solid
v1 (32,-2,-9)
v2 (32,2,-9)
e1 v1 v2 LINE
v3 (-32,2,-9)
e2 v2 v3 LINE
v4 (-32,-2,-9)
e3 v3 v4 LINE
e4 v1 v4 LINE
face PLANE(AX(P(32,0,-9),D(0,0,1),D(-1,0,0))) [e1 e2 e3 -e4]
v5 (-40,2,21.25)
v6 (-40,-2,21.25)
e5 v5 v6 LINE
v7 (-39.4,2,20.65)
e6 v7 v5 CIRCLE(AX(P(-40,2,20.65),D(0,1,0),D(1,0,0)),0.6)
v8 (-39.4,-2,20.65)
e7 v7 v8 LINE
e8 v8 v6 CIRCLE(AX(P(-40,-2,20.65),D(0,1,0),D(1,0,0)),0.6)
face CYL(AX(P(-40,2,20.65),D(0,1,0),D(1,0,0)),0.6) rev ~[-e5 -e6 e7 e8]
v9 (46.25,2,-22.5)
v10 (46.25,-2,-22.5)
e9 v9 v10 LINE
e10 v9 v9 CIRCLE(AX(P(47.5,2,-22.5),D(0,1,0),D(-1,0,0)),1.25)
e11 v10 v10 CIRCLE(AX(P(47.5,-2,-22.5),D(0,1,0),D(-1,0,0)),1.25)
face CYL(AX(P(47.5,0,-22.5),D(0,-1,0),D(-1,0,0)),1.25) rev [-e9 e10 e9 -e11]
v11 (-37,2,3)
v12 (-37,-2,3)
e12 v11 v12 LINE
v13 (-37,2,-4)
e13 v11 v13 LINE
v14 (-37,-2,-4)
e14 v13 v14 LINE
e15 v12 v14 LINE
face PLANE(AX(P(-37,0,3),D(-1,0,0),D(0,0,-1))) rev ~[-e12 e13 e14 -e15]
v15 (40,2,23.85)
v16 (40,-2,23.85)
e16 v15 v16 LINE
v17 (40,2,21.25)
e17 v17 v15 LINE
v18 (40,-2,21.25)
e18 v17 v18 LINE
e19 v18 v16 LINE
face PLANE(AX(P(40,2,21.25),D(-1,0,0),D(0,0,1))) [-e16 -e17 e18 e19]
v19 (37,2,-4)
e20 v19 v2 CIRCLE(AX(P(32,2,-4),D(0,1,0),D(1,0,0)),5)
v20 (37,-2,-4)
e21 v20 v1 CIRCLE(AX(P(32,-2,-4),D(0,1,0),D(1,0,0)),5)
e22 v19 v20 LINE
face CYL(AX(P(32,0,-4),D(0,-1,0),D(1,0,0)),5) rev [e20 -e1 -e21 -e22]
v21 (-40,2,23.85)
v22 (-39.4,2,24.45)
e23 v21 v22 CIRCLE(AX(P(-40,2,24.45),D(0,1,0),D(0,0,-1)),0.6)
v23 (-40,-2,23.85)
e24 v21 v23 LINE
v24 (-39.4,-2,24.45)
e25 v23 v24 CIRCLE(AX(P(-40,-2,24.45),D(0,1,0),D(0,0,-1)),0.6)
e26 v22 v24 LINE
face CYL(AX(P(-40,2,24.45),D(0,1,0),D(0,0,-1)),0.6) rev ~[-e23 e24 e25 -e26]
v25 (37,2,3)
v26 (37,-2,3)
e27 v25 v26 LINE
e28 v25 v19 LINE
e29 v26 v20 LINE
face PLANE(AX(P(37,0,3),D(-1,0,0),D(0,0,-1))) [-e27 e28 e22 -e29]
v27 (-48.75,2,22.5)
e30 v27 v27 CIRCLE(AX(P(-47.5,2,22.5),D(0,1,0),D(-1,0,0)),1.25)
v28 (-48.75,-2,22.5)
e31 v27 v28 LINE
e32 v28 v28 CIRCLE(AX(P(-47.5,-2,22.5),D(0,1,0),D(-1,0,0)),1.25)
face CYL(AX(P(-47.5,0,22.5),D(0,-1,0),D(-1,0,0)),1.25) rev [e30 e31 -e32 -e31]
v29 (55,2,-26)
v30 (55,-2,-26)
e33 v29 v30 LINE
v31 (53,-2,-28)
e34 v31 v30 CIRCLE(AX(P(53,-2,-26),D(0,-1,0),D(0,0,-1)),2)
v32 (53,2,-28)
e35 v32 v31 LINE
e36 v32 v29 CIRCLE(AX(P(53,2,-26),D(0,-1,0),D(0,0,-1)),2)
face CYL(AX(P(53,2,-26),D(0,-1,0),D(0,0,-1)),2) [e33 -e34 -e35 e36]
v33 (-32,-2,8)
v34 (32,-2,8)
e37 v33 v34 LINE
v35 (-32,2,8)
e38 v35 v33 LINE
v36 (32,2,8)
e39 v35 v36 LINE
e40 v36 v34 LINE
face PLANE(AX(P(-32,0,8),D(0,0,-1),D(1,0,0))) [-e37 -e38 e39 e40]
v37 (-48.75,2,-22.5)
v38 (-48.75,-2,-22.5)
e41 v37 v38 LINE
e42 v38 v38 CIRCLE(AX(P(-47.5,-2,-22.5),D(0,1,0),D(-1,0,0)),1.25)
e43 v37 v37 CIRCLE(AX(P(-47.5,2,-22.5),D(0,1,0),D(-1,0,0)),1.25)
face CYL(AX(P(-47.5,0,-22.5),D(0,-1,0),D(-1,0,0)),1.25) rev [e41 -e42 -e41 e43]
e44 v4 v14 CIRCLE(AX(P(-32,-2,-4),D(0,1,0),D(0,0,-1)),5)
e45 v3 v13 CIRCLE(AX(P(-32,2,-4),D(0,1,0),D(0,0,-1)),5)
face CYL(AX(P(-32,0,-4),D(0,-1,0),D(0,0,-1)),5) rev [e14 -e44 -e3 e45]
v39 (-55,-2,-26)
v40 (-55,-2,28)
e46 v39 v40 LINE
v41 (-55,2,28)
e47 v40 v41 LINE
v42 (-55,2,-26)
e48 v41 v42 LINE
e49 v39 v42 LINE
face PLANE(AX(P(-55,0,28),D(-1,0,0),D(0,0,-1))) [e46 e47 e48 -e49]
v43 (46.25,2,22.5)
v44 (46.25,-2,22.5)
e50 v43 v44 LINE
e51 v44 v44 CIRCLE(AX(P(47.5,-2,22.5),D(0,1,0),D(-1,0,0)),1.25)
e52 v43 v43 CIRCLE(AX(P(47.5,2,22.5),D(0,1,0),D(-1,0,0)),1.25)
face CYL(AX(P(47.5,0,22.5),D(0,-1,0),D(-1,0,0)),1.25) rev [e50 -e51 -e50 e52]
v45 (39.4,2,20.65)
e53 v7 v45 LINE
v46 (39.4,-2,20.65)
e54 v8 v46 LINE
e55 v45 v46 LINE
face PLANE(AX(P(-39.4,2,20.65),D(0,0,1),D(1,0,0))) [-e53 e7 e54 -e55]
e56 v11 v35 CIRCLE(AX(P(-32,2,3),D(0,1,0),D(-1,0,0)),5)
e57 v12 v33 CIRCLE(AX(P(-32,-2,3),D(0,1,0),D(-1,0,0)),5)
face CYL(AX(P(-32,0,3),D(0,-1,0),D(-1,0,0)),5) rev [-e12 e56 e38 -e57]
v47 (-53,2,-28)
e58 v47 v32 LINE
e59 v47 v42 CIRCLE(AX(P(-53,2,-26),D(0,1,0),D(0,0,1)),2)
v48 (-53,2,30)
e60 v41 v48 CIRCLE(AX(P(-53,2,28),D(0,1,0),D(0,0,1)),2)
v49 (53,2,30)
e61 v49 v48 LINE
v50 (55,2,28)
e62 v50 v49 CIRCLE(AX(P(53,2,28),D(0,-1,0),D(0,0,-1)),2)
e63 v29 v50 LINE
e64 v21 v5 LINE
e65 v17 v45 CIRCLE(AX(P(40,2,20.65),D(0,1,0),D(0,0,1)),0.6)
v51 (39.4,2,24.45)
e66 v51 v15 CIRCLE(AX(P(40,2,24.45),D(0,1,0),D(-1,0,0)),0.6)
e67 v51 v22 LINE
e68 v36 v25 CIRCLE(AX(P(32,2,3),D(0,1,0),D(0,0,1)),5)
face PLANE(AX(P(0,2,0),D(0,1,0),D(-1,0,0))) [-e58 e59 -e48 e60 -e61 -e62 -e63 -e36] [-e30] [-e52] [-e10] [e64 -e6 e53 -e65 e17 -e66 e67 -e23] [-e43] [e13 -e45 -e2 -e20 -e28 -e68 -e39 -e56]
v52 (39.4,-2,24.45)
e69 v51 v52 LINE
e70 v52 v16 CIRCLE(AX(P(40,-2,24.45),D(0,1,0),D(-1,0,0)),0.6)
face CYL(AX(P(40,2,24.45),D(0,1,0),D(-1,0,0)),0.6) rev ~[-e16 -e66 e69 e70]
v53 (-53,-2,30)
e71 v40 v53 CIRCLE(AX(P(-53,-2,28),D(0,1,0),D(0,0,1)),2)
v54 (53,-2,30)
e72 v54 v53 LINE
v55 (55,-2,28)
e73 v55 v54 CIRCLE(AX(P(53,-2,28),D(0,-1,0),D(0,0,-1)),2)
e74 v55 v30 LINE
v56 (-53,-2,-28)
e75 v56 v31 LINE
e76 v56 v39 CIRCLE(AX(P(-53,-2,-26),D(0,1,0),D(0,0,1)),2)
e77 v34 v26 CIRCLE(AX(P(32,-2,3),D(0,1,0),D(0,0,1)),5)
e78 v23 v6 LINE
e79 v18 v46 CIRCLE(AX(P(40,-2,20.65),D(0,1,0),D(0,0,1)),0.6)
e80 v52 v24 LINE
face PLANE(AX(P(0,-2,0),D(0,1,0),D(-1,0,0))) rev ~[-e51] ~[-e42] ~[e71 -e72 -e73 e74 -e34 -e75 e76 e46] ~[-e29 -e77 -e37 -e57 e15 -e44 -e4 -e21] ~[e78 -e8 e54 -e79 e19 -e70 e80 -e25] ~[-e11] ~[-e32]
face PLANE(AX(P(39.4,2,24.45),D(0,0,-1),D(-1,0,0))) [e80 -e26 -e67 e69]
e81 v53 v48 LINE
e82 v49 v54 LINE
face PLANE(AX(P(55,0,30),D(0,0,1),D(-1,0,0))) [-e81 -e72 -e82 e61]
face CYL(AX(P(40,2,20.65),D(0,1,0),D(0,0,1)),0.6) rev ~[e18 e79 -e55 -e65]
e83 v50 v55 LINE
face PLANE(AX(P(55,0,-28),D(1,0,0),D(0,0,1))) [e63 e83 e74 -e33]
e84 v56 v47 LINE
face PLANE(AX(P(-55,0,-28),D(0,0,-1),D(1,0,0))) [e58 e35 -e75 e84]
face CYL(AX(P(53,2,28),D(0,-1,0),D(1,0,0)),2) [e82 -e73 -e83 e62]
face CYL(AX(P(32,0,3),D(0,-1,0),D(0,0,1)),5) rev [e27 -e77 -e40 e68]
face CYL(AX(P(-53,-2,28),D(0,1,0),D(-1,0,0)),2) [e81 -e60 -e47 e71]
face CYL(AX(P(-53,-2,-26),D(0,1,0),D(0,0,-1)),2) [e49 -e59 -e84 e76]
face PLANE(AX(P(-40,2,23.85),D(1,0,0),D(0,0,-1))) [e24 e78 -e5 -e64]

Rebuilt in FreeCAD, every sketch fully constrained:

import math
import FreeCAD as App
import Part
import Sketcher


def edges_at(feature, points):
    """Names of the edges that pass closest to the given points."""
    edges = feature.Shape.Edges
    near = lambda p: min(range(len(edges)), key=lambda i: edges[i].distToShape(Part.Vertex(*p))[0])
    return sorted({f"Edge{near(p) + 1}" for p in points})


def add_polygon(sketch, points):
    """Adds a closed chain of lines whose ends are joined by coincident constraints."""
    first, n = sketch.GeometryCount, len(points)
    for a, b in zip(points, points[1:] + points[:1]):
        sketch.addGeometry(Part.LineSegment(App.Vector(*a, 0), App.Vector(*b, 0)), False)
    for i in range(n):
        sketch.addConstraint(Sketcher.Constraint("Coincident", first + i, 2, first + (i + 1) % n, 1))

doc = App.newDocument("Part")
params = doc.addObject("Spreadsheet::Sheet", "Params")
for row, (alias, value) in enumerate([
    ("sketch1_radius", "5 mm"),
    ("sketch1_diameter", "2.5 mm"),
    ("sketch1_width", "110 mm"),
    ("sketch1_width2", "64 mm"),
    ("sketch1_height", "58 mm"),
    ("pad1_length", "4 mm"),
    ("fillet_radius", "2 mm"),
    ("sketch2_radius", "0.6 mm"),
], start=1):
    params.set(f"A{row}", alias)
    params.set(f"B{row}", "=" + value)
    params.setAlias(f"B{row}", alias)

body = doc.addObject("PartDesign::Body", "Body")

sketch1 = body.newObject("Sketcher::SketchObject", "Sketch")
sketch1.AttachmentSupport = (doc.getObject("XZ_Plane"), [""])
sketch1.MapMode = "FlatFace"
add_polygon(sketch1, [(55, -28), (-55, -28), (-55, 30), (55, 30)])
sketch1.addGeometry(Part.Circle(App.Vector(47.5, -22.5, 0), App.Vector(0, 0, 1), 1.2), False)
sketch1.addGeometry(Part.Circle(App.Vector(-47.5, -22.5, 0), App.Vector(0, 0, 1), 1.2), False)
sketch1.addGeometry(Part.LineSegment(App.Vector(-32, -9, 0), App.Vector(32, -9, 0)), False)
sketch1.addGeometry(Part.ArcOfCircle(Part.Circle(App.Vector(32, -4, 0), App.Vector(0, 0, 1), 5), math.radians(-90), math.radians(0)), False)
sketch1.addGeometry(Part.LineSegment(App.Vector(37, -4, 0), App.Vector(37, 3, 0)), False)
sketch1.addGeometry(Part.ArcOfCircle(Part.Circle(App.Vector(32, 3, 0), App.Vector(0, 0, 1), 5), math.radians(0), math.radians(90)), False)
sketch1.addGeometry(Part.LineSegment(App.Vector(32, 8, 0), App.Vector(-32, 8, 0)), False)
sketch1.addGeometry(Part.ArcOfCircle(Part.Circle(App.Vector(-32, 3, 0), App.Vector(0, 0, 1), 5), math.radians(90), math.radians(180)), False)
sketch1.addGeometry(Part.LineSegment(App.Vector(-37, 3, 0), App.Vector(-37, -4, 0)), False)
sketch1.addGeometry(Part.ArcOfCircle(Part.Circle(App.Vector(-32, -4, 0), App.Vector(0, 0, 1), 5), math.radians(180), math.radians(270)), False)
sketch1.addGeometry(Part.Circle(App.Vector(47.5, 22.5, 0), App.Vector(0, 0, 1), 1.2), False)
sketch1.addGeometry(Part.Circle(App.Vector(-47.5, 22.5, 0), App.Vector(0, 0, 1), 1.2), False)
sketch1.addConstraint([
    Sketcher.Constraint("Tangent", 6, 2, 7, 1),
    Sketcher.Constraint("Tangent", 7, 2, 8, 1),
    Sketcher.Constraint("Tangent", 8, 2, 9, 1),
    Sketcher.Constraint("Tangent", 9, 2, 10, 1),
    Sketcher.Constraint("Tangent", 10, 2, 11, 1),
    Sketcher.Constraint("Tangent", 11, 2, 12, 1),
    Sketcher.Constraint("Tangent", 12, 2, 13, 1),
    Sketcher.Constraint("Tangent", 13, 2, 6, 1),
    Sketcher.Constraint("Horizontal", 0),
    Sketcher.Constraint("Vertical", 1),
    Sketcher.Constraint("Horizontal", 2),
    Sketcher.Constraint("Vertical", 3),
    Sketcher.Constraint("Horizontal", 6),
    Sketcher.Constraint("Vertical", 8),
    Sketcher.Constraint("Horizontal", 10),
    Sketcher.Constraint("Vertical", 12),
    Sketcher.Constraint("Equal", 4, 5),
    Sketcher.Constraint("Equal", 7, 9),
    Sketcher.Constraint("Equal", 9, 11),
    Sketcher.Constraint("Equal", 11, 13),
    Sketcher.Constraint("Equal", 5, 14),
    Sketcher.Constraint("Equal", 14, 15),
    Sketcher.Constraint("Symmetric", 5, 3, 14, 3, -1, 1),
    Sketcher.Constraint("Symmetric", 4, 3, 15, 3, -1, 1),
    Sketcher.Constraint("Symmetric", 4, 3, 5, 3, -2),
    Sketcher.Constraint("Radius", 7, 5.0),
    Sketcher.Constraint("Diameter", 4, 2.5),
    Sketcher.Constraint("DistanceX", 0, 2, 0, 1, 110.0),
    Sketcher.Constraint("DistanceX", 5, 3, 4, 3, 95.0),
    Sketcher.Constraint("DistanceY", 4, 3, 14, 3, 45.0),
    Sketcher.Constraint("DistanceY", 3, 2, 6, 2, 19.0),
    Sketcher.Constraint("DistanceY", 6, 2, 9, 2, 17.0),
    Sketcher.Constraint("DistanceX", 6, 1, 6, 2, 64.0),
    Sketcher.Constraint("DistanceY", 1, 1, 1, 2, 58.0),
    Sketcher.Constraint("DistanceX", -1, 1, 7, 3, 32.0),
    Sketcher.Constraint("DistanceY", 7, 3, -1, 1, 4.0),
    Sketcher.Constraint("DistanceX", 0, 2, -1, 1, 55.0),
])
sketch1.setExpression("Constraints[29]", "Params.sketch1_radius")
sketch1.setExpression("Constraints[30]", "Params.sketch1_diameter")
sketch1.setExpression("Constraints[31]", "Params.sketch1_width")
sketch1.setExpression("Constraints[36]", "Params.sketch1_width2")
sketch1.setExpression("Constraints[37]", "Params.sketch1_height")
pad1 = body.newObject("PartDesign::Pad", "Pad")
pad1.Profile = sketch1
pad1.setExpression("Length", "Params.pad1_length")
pad1.Midplane = True
doc.recompute()

fillet = body.newObject("PartDesign::Fillet", "Fillet")
fillet.Base = (pad1, edges_at(pad1, [
    (55, 0, -28),
    (-55, 0, -28),
    (-55, 0, 30),
    (55, 0, 30),
]))
fillet.setExpression("Radius", "Params.fillet_radius")

sketch2 = body.newObject("Sketcher::SketchObject", "Sketch001")
sketch2.AttachmentSupport = (doc.getObject("XZ_Plane"), [""])
sketch2.MapMode = "FlatFace"
sketch2.AttachmentOffset = App.Placement(App.Vector(0, 0, -2), App.Rotation())
sketch2.addGeometry([
    Part.LineSegment(App.Vector(-40, 21.2, 0), App.Vector(-40, 23.9, 0)),
    Part.ArcOfCircle(Part.Circle(App.Vector(-40, 24.4, 0), App.Vector(0, 0, 1), 0.6), math.radians(0), math.radians(270)),
    Part.LineSegment(App.Vector(-39.4, 24.4, 0), App.Vector(39.4, 24.4, 0)),
    Part.ArcOfCircle(Part.Circle(App.Vector(40, 24.4, 0), App.Vector(0, 0, 1), 0.6), math.radians(-90), math.radians(180)),
    Part.LineSegment(App.Vector(40, 23.9, 0), App.Vector(40, 21.2, 0)),
    Part.ArcOfCircle(Part.Circle(App.Vector(40, 20.6, 0), App.Vector(0, 0, 1), 0.6), math.radians(180), math.radians(450)),
    Part.LineSegment(App.Vector(39.4, 20.6, 0), App.Vector(-39.4, 20.6, 0)),
    Part.ArcOfCircle(Part.Circle(App.Vector(-40, 20.6, 0), App.Vector(0, 0, 1), 0.6), math.radians(90), math.radians(360)),
], False)
sketch2.addConstraint([
    Sketcher.Constraint("Coincident", 0, 2, 1, 2),
    Sketcher.Constraint("Coincident", 1, 1, 2, 1),
    Sketcher.Constraint("Coincident", 2, 2, 3, 2),
    Sketcher.Constraint("Coincident", 3, 1, 4, 1),
    Sketcher.Constraint("Coincident", 4, 2, 5, 2),
    Sketcher.Constraint("Coincident", 5, 1, 6, 1),
    Sketcher.Constraint("Coincident", 6, 2, 7, 2),
    Sketcher.Constraint("Coincident", 7, 1, 0, 1),
    Sketcher.Constraint("Vertical", 0),
    Sketcher.Constraint("Horizontal", 2),
    Sketcher.Constraint("Vertical", 4),
    Sketcher.Constraint("Horizontal", 6),
    Sketcher.Constraint("Equal", 1, 3),
    Sketcher.Constraint("Equal", 3, 5),
    Sketcher.Constraint("Equal", 5, 7),
    Sketcher.Constraint("Symmetric", 1, 3, 3, 3, -2),
    Sketcher.Constraint("Symmetric", 5, 3, 7, 3, -2),
    Sketcher.Constraint("Horizontal", 3, 3, 1, 1),
    Sketcher.Constraint("Horizontal", 7, 3, 5, 1),
    Sketcher.Constraint("Vertical", 3, 3, 5, 3),
    Sketcher.Constraint("Vertical", 7, 3, 0, 2),
    Sketcher.Constraint("Vertical", 5, 3, 3, 1),
    Sketcher.Constraint("Radius", 1, 0.6),
    Sketcher.Constraint("DistanceX", 1, 3, 3, 3, 80.0),
    Sketcher.Constraint("DistanceY", 5, 3, 3, 3, 3.8),
    Sketcher.Constraint("DistanceY", -1, 1, 1, 3, 24.45),
])
sketch2.setExpression("Constraints[22]", "Params.sketch2_radius")
pocket1 = body.newObject("PartDesign::Pocket", "Pocket")
pocket1.Profile = sketch2
pocket1.Type = "ThroughAll"
pocket1.Reversed = True

doc.recompute()
